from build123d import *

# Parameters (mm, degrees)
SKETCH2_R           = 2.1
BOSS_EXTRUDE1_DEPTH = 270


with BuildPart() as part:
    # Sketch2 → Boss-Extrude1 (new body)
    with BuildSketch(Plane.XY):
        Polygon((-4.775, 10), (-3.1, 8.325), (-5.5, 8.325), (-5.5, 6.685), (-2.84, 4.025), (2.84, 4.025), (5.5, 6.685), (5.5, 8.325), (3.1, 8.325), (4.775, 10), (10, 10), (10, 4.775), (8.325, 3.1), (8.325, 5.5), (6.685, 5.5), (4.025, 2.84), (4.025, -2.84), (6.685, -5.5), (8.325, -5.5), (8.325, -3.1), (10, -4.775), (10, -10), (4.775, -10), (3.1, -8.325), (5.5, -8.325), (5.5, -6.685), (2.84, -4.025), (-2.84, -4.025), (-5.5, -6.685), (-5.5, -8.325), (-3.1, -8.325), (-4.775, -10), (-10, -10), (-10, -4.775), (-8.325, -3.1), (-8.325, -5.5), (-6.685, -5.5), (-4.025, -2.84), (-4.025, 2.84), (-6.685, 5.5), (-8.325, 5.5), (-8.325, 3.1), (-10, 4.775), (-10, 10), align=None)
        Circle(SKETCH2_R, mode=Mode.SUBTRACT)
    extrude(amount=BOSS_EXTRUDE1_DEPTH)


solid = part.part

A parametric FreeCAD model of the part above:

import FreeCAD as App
import Part
import Sketcher
Q = App.Units.Quantity

doc = App.newDocument("Part")
params = doc.addObject("Spreadsheet::Sheet", "Params")
for row, (alias, value) in enumerate([
    ("sketch1_diameter", "4.2 mm"),
    ("sketch1_width", "2.4 mm"),
    ("sketch1_width2", "1.64 mm"),
    ("sketch1_width3", "5.68 mm"),
    ("pad1_length", "270 mm"),
], start=1):
    params.set(f"A{row}", alias)
    params.set(f"B{row}", "=" + value)
    params.setAlias(f"B{row}", alias)

body = doc.addObject("PartDesign::Body", "Body")

# Sketch on XY plane
sketch1 = doc.addObject("Sketcher::SketchObject", "Sketch")
body.addObject(sketch1)
sketch1.AttachmentSupport = (doc.XY_Plane, [""])
sketch1.MapMode = "FlatFace"
sketch1.addGeometry([
    Part.LineSegment(App.Vector(-3.1, 8.3, 0), App.Vector(-4.8, 10, 0)),  # 0
    Part.LineSegment(App.Vector(-4.8, 10, 0), App.Vector(-10, 10, 0)),  # 1
    Part.LineSegment(App.Vector(-10, 10, 0), App.Vector(-10, 4.8, 0)),  # 2
    Part.LineSegment(App.Vector(-10, 4.8, 0), App.Vector(-8.3, 3.1, 0)),  # 3
    Part.LineSegment(App.Vector(-8.3, 3.1, 0), App.Vector(-8.3, 5.5, 0)),  # 4
    Part.LineSegment(App.Vector(-8.3, 5.5, 0), App.Vector(-6.7, 5.5, 0)),  # 5
    Part.LineSegment(App.Vector(-6.7, 5.5, 0), App.Vector(-4, 2.8, 0)),  # 6
    Part.LineSegment(App.Vector(-4, 2.8, 0), App.Vector(-4, -2.8, 0)),  # 7
    Part.LineSegment(App.Vector(-4, -2.8, 0), App.Vector(-6.7, -5.5, 0)),  # 8
    Part.LineSegment(App.Vector(-6.7, -5.5, 0), App.Vector(-8.3, -5.5, 0)),  # 9
    Part.LineSegment(App.Vector(-8.3, -5.5, 0), App.Vector(-8.3, -3.1, 0)),  # 10
    Part.LineSegment(App.Vector(-8.3, -3.1, 0), App.Vector(-10, -4.8, 0)),  # 11
    Part.LineSegment(App.Vector(-10, -4.8, 0), App.Vector(-10, -10, 0)),  # 12
    Part.LineSegment(App.Vector(-10, -10, 0), App.Vector(-4.8, -10, 0)),  # 13
    Part.LineSegment(App.Vector(-4.8, -10, 0), App.Vector(-3.1, -8.3, 0)),  # 14
    Part.LineSegment(App.Vector(-3.1, -8.3, 0), App.Vector(-5.5, -8.3, 0)),  # 15
    Part.LineSegment(App.Vector(-5.5, -8.3, 0), App.Vector(-5.5, -6.7, 0)),  # 16
    Part.LineSegment(App.Vector(-5.5, -6.7, 0), App.Vector(-2.8, -4, 0)),  # 17
    Part.LineSegment(App.Vector(-2.8, -4, 0), App.Vector(2.8, -4, 0)),  # 18
    Part.LineSegment(App.Vector(2.8, -4, 0), App.Vector(5.5, -6.7, 0)),  # 19
    Part.LineSegment(App.Vector(5.5, -6.7, 0), App.Vector(5.5, -8.3, 0)),  # 20
    Part.LineSegment(App.Vector(5.5, -8.3, 0), App.Vector(3.1, -8.3, 0)),  # 21
    Part.LineSegment(App.Vector(3.1, -8.3, 0), App.Vector(4.8, -10, 0)),  # 22
    Part.LineSegment(App.Vector(4.8, -10, 0), App.Vector(10, -10, 0)),  # 23
    Part.LineSegment(App.Vector(10, -10, 0), App.Vector(10, -4.8, 0)),  # 24
    Part.LineSegment(App.Vector(10, -4.8, 0), App.Vector(8.3, -3.1, 0)),  # 25
    Part.LineSegment(App.Vector(8.3, -3.1, 0), App.Vector(8.3, -5.5, 0)),  # 26
    Part.LineSegment(App.Vector(8.3, -5.5, 0), App.Vector(6.7, -5.5, 0)),  # 27
    Part.LineSegment(App.Vector(6.7, -5.5, 0), App.Vector(4, -2.8, 0)),  # 28
    Part.LineSegment(App.Vector(4, -2.8, 0), App.Vector(4, 2.8, 0)),  # 29
    Part.LineSegment(App.Vector(4, 2.8, 0), App.Vector(6.7, 5.5, 0)),  # 30
    Part.LineSegment(App.Vector(6.7, 5.5, 0), App.Vector(8.3, 5.5, 0)),  # 31
    Part.LineSegment(App.Vector(8.3, 5.5, 0), App.Vector(8.3, 3.1, 0)),  # 32
    Part.LineSegment(App.Vector(8.3, 3.1, 0), App.Vector(10, 4.8, 0)),  # 33
    Part.LineSegment(App.Vector(10, 4.8, 0), App.Vector(10, 10, 0)),  # 34
    Part.LineSegment(App.Vector(10, 10, 0), App.Vector(4.8, 10, 0)),  # 35
    Part.LineSegment(App.Vector(4.8, 10, 0), App.Vector(3.1, 8.3, 0)),  # 36
    Part.LineSegment(App.Vector(3.1, 8.3, 0), App.Vector(5.5, 8.3, 0)),  # 37
    Part.LineSegment(App.Vector(5.5, 8.3, 0), App.Vector(5.5, 6.7, 0)),  # 38
    Part.LineSegment(App.Vector(5.5, 6.7, 0), App.Vector(2.8, 4, 0)),  # 39
    Part.LineSegment(App.Vector(2.8, 4, 0), App.Vector(-2.8, 4, 0)),  # 40
    Part.LineSegment(App.Vector(-2.8, 4, 0), App.Vector(-5.5, 6.7, 0)),  # 41
    Part.LineSegment(App.Vector(-5.5, 6.7, 0), App.Vector(-5.5, 8.3, 0)),  # 42
    Part.LineSegment(App.Vector(-5.5, 8.3, 0), App.Vector(-3.1, 8.3, 0)),  # 43
    Part.Circle(App.Vector(0, 0, 0), App.Vector(0, 0, 1), 2.1),  # 44
], False)
sketch1.addConstraint([
    Sketcher.Constraint("Coincident", 0, 2, 1, 1),
    Sketcher.Constraint("Coincident", 1, 2, 2, 1),
    Sketcher.Constraint("Coincident", 2, 2, 3, 1),
    Sketcher.Constraint("Coincident", 3, 2, 4, 1),
    Sketcher.Constraint("Coincident", 4, 2, 5, 1),
    Sketcher.Constraint("Coincident", 5, 2, 6, 1),
    Sketcher.Constraint("Coincident", 6, 2, 7, 1),
    Sketcher.Constraint("Coincident", 7, 2, 8, 1),
    Sketcher.Constraint("Coincident", 8, 2, 9, 1),
    Sketcher.Constraint("Coincident", 9, 2, 10, 1),
    Sketcher.Constraint("Coincident", 10, 2, 11, 1),
    Sketcher.Constraint("Coincident", 11, 2, 12, 1),
    Sketcher.Constraint("Coincident", 12, 2, 13, 1),
    Sketcher.Constraint("Coincident", 13, 2, 14, 1),
    Sketcher.Constraint("Coincident", 14, 2, 15, 1),
    Sketcher.Constraint("Coincident", 15, 2, 16, 1),
    Sketcher.Constraint("Coincident", 16, 2, 17, 1),
    Sketcher.Constraint("Coincident", 17, 2, 18, 1),
    Sketcher.Constraint("Coincident", 18, 2, 19, 1),
    Sketcher.Constraint("Coincident", 19, 2, 20, 1),
    Sketcher.Constraint("Coincident", 20, 2, 21, 1),
    Sketcher.Constraint("Coincident", 21, 2, 22, 1),
    Sketcher.Constraint("Coincident", 22, 2, 23, 1),
    Sketcher.Constraint("Coincident", 23, 2, 24, 1),
    Sketcher.Constraint("Coincident", 24, 2, 25, 1),
    Sketcher.Constraint("Coincident", 25, 2, 26, 1),
    Sketcher.Constraint("Coincident", 26, 2, 27, 1),
    Sketcher.Constraint("Coincident", 27, 2, 28, 1),
    Sketcher.Constraint("Coincident", 28, 2, 29, 1),
    Sketcher.Constraint("Coincident", 29, 2, 30, 1),
    Sketcher.Constraint("Coincident", 30, 2, 31, 1),
    Sketcher.Constraint("Coincident", 31, 2, 32, 1),
    Sketcher.Constraint("Coincident", 32, 2, 33, 1),
    Sketcher.Constraint("Coincident", 33, 2, 34, 1),
    Sketcher.Constraint("Coincident", 34, 2, 35, 1),
    Sketcher.Constraint("Coincident", 35, 2, 36, 1),
    Sketcher.Constraint("Coincident", 36, 2, 37, 1),
    Sketcher.Constraint("Coincident", 37, 2, 38, 1),
    Sketcher.Constraint("Coincident", 38, 2, 39, 1),
    Sketcher.Constraint("Coincident", 39, 2, 40, 1),
    Sketcher.Constraint("Coincident", 40, 2, 41, 1),
    Sketcher.Constraint("Coincident", 41, 2, 42, 1),
    Sketcher.Constraint("Coincident", 42, 2, 43, 1),
    Sketcher.Constraint("Coincident", 43, 2, 0, 1),
    Sketcher.Constraint("Horizontal", 1),
    Sketcher.Constraint("Vertical", 2),
    Sketcher.Constraint("Vertical", 4),
    Sketcher.Constraint("Horizontal", 5),
    Sketcher.Constraint("Vertical", 7),
    Sketcher.Constraint("Horizontal", 9),
    Sketcher.Constraint("Vertical", 10),
    Sketcher.Constraint("Vertical", 12),
    Sketcher.Constraint("Horizontal", 13),
    Sketcher.Constraint("Horizontal", 15),
    Sketcher.Constraint("Vertical", 16),
    Sketcher.Constraint("Horizontal", 18),
    Sketcher.Constraint("Vertical", 20),
    Sketcher.Constraint("Horizontal", 21),
    Sketcher.Constraint("Horizontal", 23),
    Sketcher.Constraint("Vertical", 24),
    Sketcher.Constraint("Vertical", 26),
    Sketcher.Constraint("Horizontal", 27),
    Sketcher.Constraint("Vertical", 29),
    Sketcher.Constraint("Horizontal", 31),
    Sketcher.Constraint("Vertical", 32),
    Sketcher.Constraint("Vertical", 34),
    Sketcher.Constraint("Horizontal", 35),
    Sketcher.Constraint("Horizontal", 37),
    Sketcher.Constraint("Vertical", 38),
    Sketcher.Constraint("Horizontal", 40),
    Sketcher.Constraint("Vertical", 42),
    Sketcher.Constraint("Horizontal", 43),
    Sketcher.Constraint("Coincident", 44, 3, -1, 1),
    Sketcher.Constraint("Symmetric", 0, 2, 22, 2, -1, 1),
    Sketcher.Constraint("Symmetric", 2, 2, 24, 2, -1, 1),
    Sketcher.Constraint("Symmetric", 3, 2, 25, 2, -1, 1),
    Sketcher.Constraint("Symmetric", 5, 2, 27, 2, -1, 1),
    Sketcher.Constraint("Symmetric", 6, 2, 28, 2, -1, 1),
    Sketcher.Constraint("Symmetric", 8, 2, 30, 2, -1, 1),
    Sketcher.Constraint("Symmetric", 10, 2, 32, 2, -1, 1),
    Sketcher.Constraint("Symmetric", 11, 2, 33, 2, -1, 1),
    Sketcher.Constraint("Symmetric", 13, 2, 35, 2, -1, 1),
    Sketcher.Constraint("Symmetric", 14, 2, 36, 2, -1, 1),
    Sketcher.Constraint("Symmetric", 16, 2, 38, 2, -1, 1),
    Sketcher.Constraint("Symmetric", 17, 2, 39, 2, -1, 1),
    Sketcher.Constraint("Symmetric", 19, 2, 41, 2, -1, 1),
    Sketcher.Constraint("Symmetric", 21, 2, 43, 2, -1, 1),
    Sketcher.Constraint("Symmetric", 16, 2, 19, 2, -2),
    Sketcher.Constraint("Symmetric", 14, 2, 21, 2, -2),
    Sketcher.Constraint("Symmetric", 13, 2, 22, 2, -2),
    Sketcher.Constraint("Symmetric", 11, 2, 24, 2, -2),
    Sketcher.Constraint("Symmetric", 10, 2, 25, 2, -2),
    Sketcher.Constraint("Symmetric", 8, 2, 27, 2, -2),
    Sketcher.Constraint("Parallel", 0, 3),
    Sketcher.Constraint("Parallel", 3, 6),
    Sketcher.Constraint("Perpendicular", 6, 8),
    Sketcher.Constraint("Parallel", 8, 11),
    Sketcher.Constraint("Parallel", 14, 17),
    Sketcher.Constraint("Perpendicular", 17, 19),
    Sketcher.Constraint("Perpendicular", 28, 30),
    Sketcher.Constraint("Perpendicular", 39, 41),
    Sketcher.Constraint("Equal", 35, 2),
    Sketcher.Constraint("Equal", 43, 4),
    Sketcher.Constraint("Equal", 40, 7),
    Sketcher.Constraint("Equal", 31, 16),
    Sketcher.Constraint("Equal", 0, 3),
    Sketcher.Constraint("Equal", 8, 17),
    Sketcher.Constraint("Diameter", 44, Q("4.2 mm")),
    Sketcher.Constraint("DistanceX", 15, 2, 15, 1, Q("2.4 mm")),
    Sketcher.Constraint("DistanceY", -1, 1, 0, 2, Q("10 mm")),
    Sketcher.Constraint("DistanceX", 5, 1, 5, 2, Q("1.64 mm")),
    Sketcher.Constraint("DistanceX", 18, 1, 18, 2, Q("5.68 mm")),
    Sketcher.Constraint("DistanceY", -1, 1, 3, 2, Q("3.1 mm")),
    Sketcher.Constraint("DistanceX", 1, 2, 1, 1, Q("5.225 mm")),
])
sketch1.setExpression("Constraints[107]", "Params.sketch1_diameter")
sketch1.setExpression("Constraints[108]", "Params.sketch1_width")
sketch1.setExpression("Constraints[110]", "Params.sketch1_width2")
sketch1.setExpression("Constraints[111]", "Params.sketch1_width3")
pad1 = doc.addObject("PartDesign::Pad", "Pad")
body.addObject(pad1)
pad1.Profile = sketch1
pad1.setExpression("Length", "Params.pad1_length")

doc.recompute()
